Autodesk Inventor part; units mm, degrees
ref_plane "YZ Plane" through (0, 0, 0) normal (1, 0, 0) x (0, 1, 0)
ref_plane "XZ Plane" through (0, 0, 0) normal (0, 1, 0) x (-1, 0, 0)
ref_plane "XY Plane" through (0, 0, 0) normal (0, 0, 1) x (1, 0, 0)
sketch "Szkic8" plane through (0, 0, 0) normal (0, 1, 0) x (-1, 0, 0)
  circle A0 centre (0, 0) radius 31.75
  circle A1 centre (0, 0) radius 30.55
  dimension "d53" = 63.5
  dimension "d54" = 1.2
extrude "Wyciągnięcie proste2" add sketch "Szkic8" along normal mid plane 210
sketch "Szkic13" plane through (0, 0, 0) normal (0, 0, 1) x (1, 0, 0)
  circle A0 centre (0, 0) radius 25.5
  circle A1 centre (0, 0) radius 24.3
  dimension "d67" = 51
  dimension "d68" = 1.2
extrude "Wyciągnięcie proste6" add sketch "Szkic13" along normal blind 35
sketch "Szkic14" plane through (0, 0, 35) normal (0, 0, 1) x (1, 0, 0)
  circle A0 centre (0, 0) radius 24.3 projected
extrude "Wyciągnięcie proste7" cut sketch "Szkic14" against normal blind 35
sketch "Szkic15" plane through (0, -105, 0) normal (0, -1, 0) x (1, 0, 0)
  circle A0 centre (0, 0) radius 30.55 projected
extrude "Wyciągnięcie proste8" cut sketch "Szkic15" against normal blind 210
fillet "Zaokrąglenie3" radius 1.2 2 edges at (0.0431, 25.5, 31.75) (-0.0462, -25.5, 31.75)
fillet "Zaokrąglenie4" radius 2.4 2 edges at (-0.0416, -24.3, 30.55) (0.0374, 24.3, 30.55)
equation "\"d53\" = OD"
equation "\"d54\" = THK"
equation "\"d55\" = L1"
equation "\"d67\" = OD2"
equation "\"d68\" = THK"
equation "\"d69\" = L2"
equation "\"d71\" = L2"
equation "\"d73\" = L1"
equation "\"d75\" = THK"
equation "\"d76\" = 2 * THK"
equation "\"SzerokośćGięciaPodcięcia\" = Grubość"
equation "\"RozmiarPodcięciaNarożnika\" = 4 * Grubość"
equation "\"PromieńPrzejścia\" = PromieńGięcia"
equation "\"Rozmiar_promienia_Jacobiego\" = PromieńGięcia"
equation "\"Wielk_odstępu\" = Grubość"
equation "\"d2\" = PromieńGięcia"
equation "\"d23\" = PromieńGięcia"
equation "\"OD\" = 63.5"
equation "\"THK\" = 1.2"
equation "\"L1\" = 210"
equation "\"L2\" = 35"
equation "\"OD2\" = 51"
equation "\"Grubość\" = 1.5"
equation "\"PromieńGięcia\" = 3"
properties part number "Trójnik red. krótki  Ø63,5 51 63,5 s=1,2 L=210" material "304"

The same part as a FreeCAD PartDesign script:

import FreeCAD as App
import Part
import Sketcher
Q = App.Units.Quantity


def edges_at(feature, points):
    """Names of the edges that pass closest to the given points."""
    edges = feature.Shape.Edges
    near = lambda p: min(range(len(edges)), key=lambda i: edges[i].distToShape(Part.Vertex(*p))[0])
    return sorted({f"Edge{near(p) + 1}" for p in points})

doc = App.newDocument("Part")
body = doc.addObject("PartDesign::Body", "Body")

sketch1 = body.newObject("Sketcher::SketchObject", "Sketch")
sketch1.AttachmentSupport = (doc.getObject("XZ_Plane"), [""])
sketch1.MapMode = "FlatFace"
sketch1.addGeometry([
    Part.Circle(App.Vector(0, 0, 0), App.Vector(0, 0, 1), 32),
    Part.Circle(App.Vector(0, 0, 0), App.Vector(0, 0, 1), 31),
], False)
sketch1.addConstraint([
    Sketcher.Constraint("Coincident", 0, 3, -1, 1),
    Sketcher.Constraint("Coincident", 1, 3, -1, 1),
    Sketcher.Constraint("Diameter", 0, Q("63.5 mm")),
    Sketcher.Constraint("Diameter", 1, Q("61.1 mm")),
])
pad1 = body.newObject("PartDesign::Pad", "Pad")
pad1.Profile = sketch1
pad1.Length = 210
pad1.Midplane = True

sketch2 = body.newObject("Sketcher::SketchObject", "Sketch001")
sketch2.AttachmentSupport = (doc.getObject("XY_Plane"), [""])
sketch2.MapMode = "FlatFace"
sketch2.addGeometry([
    Part.Circle(App.Vector(0, 0, 0), App.Vector(0, 0, 1), 26),
    Part.Circle(App.Vector(0, 0, 0), App.Vector(0, 0, 1), 24),
], False)
sketch2.addConstraint([
    Sketcher.Constraint("Coincident", 0, 3, -1, 1),
    Sketcher.Constraint("Coincident", 1, 3, -1, 1),
    Sketcher.Constraint("Diameter", 0, Q("51 mm")),
    Sketcher.Constraint("Diameter", 1, Q("48.6 mm")),
])
pad2 = body.newObject("PartDesign::Pad", "Pad001")
pad2.Profile = sketch2
pad2.Length = 35

sketch3 = body.newObject("Sketcher::SketchObject", "Sketch002")
sketch3.AttachmentSupport = (doc.getObject("XY_Plane"), [""])
sketch3.MapMode = "FlatFace"
sketch3.AttachmentOffset = App.Placement(App.Vector(0, 0, 35), App.Rotation())
sketch3.addGeometry(Part.Circle(App.Vector(0, 0, 0), App.Vector(0, 0, 1), 24), False)
sketch3.addConstraint([
    Sketcher.Constraint("Coincident", 0, 3, -1, 1),
    Sketcher.Constraint("Diameter", 0, Q("48.6 mm")),
])
pocket1 = body.newObject("PartDesign::Pocket", "Pocket")
pocket1.Profile = sketch3
pocket1.Length = 35

sketch4 = body.newObject("Sketcher::SketchObject", "Sketch003")
sketch4.AttachmentSupport = (doc.getObject("XZ_Plane"), [""])
sketch4.MapMode = "FlatFace"
sketch4.AttachmentOffset = App.Placement(App.Vector(0, 0, 105), App.Rotation())
sketch4.addGeometry(Part.Circle(App.Vector(0, 0, 0), App.Vector(0, 0, 1), 31), False)
sketch4.addConstraint([
    Sketcher.Constraint("Coincident", 0, 3, -1, 1),
    Sketcher.Constraint("Diameter", 0, Q("61.1 mm")),
])
pocket2 = body.newObject("PartDesign::Pocket", "Pocket001")
pocket2.Profile = sketch4
pocket2.Length = 210
doc.recompute()

fillet = body.newObject("PartDesign::Fillet", "Fillet")
fillet.Base = (pocket2, edges_at(pocket2, [(0.043, 25.5, 31.75), (-0.046, -25.5, 31.75)]))
fillet.Radius = 1.2
doc.recompute()

fillet2 = body.newObject("PartDesign::Fillet", "Fillet001")
fillet2.Base = (fillet, edges_at(fillet, [(-0.042, -24.3, 30.55), (0.037, 24.3, 30.55)]))
fillet2.Radius = 2.4

doc.recompute()
